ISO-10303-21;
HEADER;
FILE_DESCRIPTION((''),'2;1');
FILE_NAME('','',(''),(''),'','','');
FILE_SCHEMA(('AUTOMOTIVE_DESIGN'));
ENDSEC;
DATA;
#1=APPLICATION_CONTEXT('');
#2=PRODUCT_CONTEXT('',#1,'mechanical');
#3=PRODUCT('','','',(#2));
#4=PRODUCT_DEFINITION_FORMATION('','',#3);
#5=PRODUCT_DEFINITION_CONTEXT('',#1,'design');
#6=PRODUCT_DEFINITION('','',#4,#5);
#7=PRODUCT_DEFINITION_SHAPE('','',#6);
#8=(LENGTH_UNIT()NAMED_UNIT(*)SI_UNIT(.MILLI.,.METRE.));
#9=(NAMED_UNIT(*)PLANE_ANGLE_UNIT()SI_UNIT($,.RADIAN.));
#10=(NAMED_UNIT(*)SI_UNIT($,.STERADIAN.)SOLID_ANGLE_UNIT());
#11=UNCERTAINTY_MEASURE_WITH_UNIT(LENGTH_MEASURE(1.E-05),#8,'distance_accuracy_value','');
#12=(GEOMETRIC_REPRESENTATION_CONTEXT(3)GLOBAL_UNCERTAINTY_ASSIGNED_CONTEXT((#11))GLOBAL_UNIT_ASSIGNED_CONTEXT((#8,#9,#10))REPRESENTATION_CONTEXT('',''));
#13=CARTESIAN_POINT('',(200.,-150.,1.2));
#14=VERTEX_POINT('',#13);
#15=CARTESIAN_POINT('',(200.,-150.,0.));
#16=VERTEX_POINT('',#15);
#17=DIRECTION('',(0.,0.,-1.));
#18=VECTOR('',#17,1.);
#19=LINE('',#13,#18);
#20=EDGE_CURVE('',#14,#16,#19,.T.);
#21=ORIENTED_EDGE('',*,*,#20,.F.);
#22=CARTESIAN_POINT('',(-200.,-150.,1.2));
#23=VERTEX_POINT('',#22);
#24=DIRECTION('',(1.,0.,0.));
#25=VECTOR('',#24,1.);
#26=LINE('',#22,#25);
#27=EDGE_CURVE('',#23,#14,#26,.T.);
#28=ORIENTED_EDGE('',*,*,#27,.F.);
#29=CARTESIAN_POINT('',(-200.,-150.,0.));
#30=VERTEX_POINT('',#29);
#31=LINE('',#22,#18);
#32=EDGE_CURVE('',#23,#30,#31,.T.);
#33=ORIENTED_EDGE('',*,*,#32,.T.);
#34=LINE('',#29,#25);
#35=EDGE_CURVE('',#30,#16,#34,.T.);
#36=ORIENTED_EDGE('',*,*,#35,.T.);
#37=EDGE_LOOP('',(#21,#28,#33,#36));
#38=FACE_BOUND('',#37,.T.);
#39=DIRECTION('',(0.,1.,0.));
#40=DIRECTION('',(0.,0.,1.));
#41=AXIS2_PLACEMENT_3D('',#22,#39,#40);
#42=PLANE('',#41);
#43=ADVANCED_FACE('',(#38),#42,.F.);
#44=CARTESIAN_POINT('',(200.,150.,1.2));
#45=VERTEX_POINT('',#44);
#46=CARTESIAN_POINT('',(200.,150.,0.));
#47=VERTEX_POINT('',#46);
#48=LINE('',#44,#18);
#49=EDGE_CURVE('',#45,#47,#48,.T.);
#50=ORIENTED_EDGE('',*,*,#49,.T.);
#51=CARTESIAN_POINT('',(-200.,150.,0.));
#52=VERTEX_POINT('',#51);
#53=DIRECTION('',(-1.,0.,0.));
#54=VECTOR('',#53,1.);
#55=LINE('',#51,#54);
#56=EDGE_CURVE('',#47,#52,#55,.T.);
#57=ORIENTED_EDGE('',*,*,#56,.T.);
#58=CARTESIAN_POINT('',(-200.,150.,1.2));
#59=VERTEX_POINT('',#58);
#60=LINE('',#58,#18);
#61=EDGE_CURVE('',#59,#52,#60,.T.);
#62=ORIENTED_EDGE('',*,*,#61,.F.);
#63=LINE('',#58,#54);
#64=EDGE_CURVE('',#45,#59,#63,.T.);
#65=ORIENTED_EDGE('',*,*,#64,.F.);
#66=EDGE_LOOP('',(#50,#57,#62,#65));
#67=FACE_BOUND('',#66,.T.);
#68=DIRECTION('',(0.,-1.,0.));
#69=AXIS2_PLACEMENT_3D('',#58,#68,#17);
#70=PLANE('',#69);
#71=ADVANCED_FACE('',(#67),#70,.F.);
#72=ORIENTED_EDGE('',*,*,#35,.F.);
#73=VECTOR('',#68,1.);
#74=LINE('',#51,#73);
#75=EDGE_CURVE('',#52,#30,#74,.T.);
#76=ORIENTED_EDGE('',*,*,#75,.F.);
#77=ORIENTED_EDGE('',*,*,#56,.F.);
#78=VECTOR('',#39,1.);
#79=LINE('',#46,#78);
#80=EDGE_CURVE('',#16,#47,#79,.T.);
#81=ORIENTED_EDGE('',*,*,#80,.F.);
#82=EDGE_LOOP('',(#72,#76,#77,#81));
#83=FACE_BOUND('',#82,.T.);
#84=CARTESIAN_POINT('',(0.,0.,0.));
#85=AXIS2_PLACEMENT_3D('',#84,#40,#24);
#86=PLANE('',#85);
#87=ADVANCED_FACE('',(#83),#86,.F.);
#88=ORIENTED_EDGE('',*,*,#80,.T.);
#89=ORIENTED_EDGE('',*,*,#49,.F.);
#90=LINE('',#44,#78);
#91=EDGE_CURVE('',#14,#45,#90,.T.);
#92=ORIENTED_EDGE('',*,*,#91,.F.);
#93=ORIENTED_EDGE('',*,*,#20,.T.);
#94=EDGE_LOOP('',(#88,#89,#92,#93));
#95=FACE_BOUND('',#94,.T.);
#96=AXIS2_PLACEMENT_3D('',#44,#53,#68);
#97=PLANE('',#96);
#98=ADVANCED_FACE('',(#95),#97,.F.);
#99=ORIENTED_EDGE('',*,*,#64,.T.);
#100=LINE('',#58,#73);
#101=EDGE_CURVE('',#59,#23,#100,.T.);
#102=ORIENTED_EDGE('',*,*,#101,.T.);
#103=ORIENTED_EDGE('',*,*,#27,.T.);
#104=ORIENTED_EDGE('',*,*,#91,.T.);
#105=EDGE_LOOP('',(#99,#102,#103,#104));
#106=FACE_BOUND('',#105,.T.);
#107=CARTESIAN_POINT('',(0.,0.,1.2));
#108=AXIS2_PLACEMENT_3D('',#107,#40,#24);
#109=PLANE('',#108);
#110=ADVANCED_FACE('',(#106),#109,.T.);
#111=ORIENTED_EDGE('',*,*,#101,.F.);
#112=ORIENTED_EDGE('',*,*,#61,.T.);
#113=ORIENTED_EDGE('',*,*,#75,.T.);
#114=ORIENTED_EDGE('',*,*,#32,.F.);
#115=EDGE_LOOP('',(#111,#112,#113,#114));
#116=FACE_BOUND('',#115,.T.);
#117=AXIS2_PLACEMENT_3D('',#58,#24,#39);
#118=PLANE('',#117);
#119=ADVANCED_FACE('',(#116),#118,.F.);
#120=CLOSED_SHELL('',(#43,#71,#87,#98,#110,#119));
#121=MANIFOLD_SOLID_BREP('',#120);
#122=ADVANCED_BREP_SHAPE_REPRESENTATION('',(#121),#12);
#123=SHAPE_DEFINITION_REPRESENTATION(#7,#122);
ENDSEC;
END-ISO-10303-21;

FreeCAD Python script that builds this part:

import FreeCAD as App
import Part
import Sketcher

V = App.Vector
Q = App.Units.Quantity

doc = App.newDocument("Part")
body = doc.addObject("PartDesign::Body", "Body")

sketch1 = body.newObject("Sketcher::SketchObject", "Sketch")
sketch1.AttachmentSupport = (doc.getObject("XY_Plane"), [""])
sketch1.MapMode = "FlatFace"
sketch1.addGeometry([
    Part.LineSegment(V(-200, 150, 0), V(-200, -150, 0)),
    Part.LineSegment(V(-200, -150, 0), V(200, -150, 0)),
    Part.LineSegment(V(200, -150, 0), V(200, 150, 0)),
    Part.LineSegment(V(200, 150, 0), V(-200, 150, 0)),
], False)
sketch1.addConstraint([
    Sketcher.Constraint("Coincident", 0, 2, 1, 1),
    Sketcher.Constraint("Coincident", 1, 2, 2, 1),
    Sketcher.Constraint("Coincident", 2, 2, 3, 1),
    Sketcher.Constraint("Coincident", 3, 2, 0, 1),
    Sketcher.Constraint("Vertical", 0),
    Sketcher.Constraint("Horizontal", 1),
    Sketcher.Constraint("Vertical", 2),
    Sketcher.Constraint("Horizontal", 3),
    Sketcher.Constraint("Symmetric", 0, 2, 2, 2, -1, 1),
    Sketcher.Constraint("DistanceX", 1, 1, 1, 2, Q("400 mm")),
    Sketcher.Constraint("DistanceY", 0, 2, 0, 1, Q("300 mm")),
])
pad1 = body.newObject("PartDesign::Pad", "Pad")
pad1.Profile = sketch1
pad1.Length = 1.2

doc.recompute()
